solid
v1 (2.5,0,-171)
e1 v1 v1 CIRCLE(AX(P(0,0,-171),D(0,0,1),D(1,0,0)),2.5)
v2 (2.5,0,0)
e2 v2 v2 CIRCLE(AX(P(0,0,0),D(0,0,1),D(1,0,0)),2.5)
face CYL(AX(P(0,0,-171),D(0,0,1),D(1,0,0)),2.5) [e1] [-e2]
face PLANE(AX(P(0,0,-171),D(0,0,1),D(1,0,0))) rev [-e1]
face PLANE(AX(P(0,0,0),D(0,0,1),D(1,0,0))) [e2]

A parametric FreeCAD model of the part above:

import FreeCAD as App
import Part
import Sketcher

V = App.Vector
Q = App.Units.Quantity

doc = App.newDocument("Part")
body = doc.addObject("PartDesign::Body", "Body")

# Sketch on XY plane
sketch1 = body.newObject("Sketcher::SketchObject", "Sketch")
sketch1.AttachmentSupport = (doc.getObject("XY_Plane"), [""])
sketch1.MapMode = "FlatFace"
sketch1.addGeometry(Part.Circle(V(0, 0, 0), V(0, 0, 1), 2.5), False)
sketch1.addConstraint(Sketcher.Constraint("Coincident", 0, 3, -1, 1))
sketch1.addConstraint(Sketcher.Constraint("Diameter", 0, Q("5 mm")))
pad1 = body.newObject("PartDesign::Pad", "Pad")
pad1.Profile = sketch1
pad1.Length = 171
pad1.Reversed = True

doc.recompute()
